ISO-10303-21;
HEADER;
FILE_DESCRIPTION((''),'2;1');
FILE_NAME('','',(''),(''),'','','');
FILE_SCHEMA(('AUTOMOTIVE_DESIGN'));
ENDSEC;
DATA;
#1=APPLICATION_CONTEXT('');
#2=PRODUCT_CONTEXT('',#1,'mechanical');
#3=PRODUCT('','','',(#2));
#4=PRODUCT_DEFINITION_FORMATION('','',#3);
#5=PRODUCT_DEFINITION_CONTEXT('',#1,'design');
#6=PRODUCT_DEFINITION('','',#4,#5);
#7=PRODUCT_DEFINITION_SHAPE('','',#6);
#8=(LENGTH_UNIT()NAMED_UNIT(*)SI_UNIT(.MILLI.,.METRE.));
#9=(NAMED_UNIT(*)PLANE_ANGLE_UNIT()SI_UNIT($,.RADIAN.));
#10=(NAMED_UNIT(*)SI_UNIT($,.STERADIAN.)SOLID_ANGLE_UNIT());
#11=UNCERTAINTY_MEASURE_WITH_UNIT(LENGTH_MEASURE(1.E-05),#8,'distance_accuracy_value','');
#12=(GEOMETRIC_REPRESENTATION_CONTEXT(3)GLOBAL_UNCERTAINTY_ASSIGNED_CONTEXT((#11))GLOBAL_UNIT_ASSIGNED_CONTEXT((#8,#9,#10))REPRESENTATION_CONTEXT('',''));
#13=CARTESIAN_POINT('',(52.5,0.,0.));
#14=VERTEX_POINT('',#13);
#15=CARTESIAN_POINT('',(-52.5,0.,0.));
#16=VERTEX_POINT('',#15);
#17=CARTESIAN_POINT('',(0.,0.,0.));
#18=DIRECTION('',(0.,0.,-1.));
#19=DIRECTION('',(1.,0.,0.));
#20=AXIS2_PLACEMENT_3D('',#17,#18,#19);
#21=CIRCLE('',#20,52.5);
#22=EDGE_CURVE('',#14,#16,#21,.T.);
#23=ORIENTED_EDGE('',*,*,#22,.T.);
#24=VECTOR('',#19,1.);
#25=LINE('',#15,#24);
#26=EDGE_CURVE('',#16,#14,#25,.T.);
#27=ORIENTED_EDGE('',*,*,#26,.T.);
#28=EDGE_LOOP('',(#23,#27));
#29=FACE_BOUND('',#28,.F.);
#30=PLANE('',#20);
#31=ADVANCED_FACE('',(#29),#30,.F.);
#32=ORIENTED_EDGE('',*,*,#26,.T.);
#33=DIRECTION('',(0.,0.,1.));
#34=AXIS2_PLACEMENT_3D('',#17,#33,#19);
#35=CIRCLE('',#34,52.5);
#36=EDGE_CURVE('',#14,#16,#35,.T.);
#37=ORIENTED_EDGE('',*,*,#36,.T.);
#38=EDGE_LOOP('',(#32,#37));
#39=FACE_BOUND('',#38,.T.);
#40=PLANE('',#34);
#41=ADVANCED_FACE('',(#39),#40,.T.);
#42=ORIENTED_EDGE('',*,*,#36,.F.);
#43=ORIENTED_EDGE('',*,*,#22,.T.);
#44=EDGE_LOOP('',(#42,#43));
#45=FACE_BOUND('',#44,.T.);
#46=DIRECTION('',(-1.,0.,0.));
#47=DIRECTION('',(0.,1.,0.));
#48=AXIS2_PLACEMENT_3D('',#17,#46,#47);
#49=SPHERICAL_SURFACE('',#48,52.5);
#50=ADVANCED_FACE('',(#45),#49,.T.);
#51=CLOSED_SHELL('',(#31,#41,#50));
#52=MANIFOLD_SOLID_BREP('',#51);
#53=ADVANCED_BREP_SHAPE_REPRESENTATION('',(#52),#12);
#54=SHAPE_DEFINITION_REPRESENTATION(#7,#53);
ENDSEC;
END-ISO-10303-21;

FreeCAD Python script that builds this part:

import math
import FreeCAD as App
import Part
import Sketcher

V = App.Vector

doc = App.newDocument("Part")
body = doc.addObject("PartDesign::Body", "Body")

# Sketch on XY plane
sketch1 = body.newObject("Sketcher::SketchObject", "Sketch")
sketch1.AttachmentSupport = (doc.getObject("XY_Plane"), [""])
sketch1.MapMode = "FlatFace"
sketch1.addGeometry([
    Part.ArcOfCircle(Part.Circle(V(0, 0, 0), V(0, 0, 1), 52), math.radians(0), math.radians(180)),
    Part.LineSegment(V(-52, 0, 0), V(52, 0, 0)),
], False)
sketch1.addConstraint([
    Sketcher.Constraint("Coincident", 0, 1, 1, 2),
    Sketcher.Constraint("Coincident", 1, 1, 0, 2),
    Sketcher.Constraint("Horizontal", 1),
    Sketcher.Constraint("Coincident", 0, 3, -1, 1),
    Sketcher.Constraint("PointOnObject", 0, 1, -1),
    Sketcher.Constraint("Radius", 0, 52.5),
])
revolution = body.newObject("PartDesign::Revolution", "Revolution")
revolution.Profile = sketch1
revolution.ReferenceAxis = (sketch1, ["H_Axis"])
revolution.Angle = 180
revolution.Reversed = True

doc.recompute()
